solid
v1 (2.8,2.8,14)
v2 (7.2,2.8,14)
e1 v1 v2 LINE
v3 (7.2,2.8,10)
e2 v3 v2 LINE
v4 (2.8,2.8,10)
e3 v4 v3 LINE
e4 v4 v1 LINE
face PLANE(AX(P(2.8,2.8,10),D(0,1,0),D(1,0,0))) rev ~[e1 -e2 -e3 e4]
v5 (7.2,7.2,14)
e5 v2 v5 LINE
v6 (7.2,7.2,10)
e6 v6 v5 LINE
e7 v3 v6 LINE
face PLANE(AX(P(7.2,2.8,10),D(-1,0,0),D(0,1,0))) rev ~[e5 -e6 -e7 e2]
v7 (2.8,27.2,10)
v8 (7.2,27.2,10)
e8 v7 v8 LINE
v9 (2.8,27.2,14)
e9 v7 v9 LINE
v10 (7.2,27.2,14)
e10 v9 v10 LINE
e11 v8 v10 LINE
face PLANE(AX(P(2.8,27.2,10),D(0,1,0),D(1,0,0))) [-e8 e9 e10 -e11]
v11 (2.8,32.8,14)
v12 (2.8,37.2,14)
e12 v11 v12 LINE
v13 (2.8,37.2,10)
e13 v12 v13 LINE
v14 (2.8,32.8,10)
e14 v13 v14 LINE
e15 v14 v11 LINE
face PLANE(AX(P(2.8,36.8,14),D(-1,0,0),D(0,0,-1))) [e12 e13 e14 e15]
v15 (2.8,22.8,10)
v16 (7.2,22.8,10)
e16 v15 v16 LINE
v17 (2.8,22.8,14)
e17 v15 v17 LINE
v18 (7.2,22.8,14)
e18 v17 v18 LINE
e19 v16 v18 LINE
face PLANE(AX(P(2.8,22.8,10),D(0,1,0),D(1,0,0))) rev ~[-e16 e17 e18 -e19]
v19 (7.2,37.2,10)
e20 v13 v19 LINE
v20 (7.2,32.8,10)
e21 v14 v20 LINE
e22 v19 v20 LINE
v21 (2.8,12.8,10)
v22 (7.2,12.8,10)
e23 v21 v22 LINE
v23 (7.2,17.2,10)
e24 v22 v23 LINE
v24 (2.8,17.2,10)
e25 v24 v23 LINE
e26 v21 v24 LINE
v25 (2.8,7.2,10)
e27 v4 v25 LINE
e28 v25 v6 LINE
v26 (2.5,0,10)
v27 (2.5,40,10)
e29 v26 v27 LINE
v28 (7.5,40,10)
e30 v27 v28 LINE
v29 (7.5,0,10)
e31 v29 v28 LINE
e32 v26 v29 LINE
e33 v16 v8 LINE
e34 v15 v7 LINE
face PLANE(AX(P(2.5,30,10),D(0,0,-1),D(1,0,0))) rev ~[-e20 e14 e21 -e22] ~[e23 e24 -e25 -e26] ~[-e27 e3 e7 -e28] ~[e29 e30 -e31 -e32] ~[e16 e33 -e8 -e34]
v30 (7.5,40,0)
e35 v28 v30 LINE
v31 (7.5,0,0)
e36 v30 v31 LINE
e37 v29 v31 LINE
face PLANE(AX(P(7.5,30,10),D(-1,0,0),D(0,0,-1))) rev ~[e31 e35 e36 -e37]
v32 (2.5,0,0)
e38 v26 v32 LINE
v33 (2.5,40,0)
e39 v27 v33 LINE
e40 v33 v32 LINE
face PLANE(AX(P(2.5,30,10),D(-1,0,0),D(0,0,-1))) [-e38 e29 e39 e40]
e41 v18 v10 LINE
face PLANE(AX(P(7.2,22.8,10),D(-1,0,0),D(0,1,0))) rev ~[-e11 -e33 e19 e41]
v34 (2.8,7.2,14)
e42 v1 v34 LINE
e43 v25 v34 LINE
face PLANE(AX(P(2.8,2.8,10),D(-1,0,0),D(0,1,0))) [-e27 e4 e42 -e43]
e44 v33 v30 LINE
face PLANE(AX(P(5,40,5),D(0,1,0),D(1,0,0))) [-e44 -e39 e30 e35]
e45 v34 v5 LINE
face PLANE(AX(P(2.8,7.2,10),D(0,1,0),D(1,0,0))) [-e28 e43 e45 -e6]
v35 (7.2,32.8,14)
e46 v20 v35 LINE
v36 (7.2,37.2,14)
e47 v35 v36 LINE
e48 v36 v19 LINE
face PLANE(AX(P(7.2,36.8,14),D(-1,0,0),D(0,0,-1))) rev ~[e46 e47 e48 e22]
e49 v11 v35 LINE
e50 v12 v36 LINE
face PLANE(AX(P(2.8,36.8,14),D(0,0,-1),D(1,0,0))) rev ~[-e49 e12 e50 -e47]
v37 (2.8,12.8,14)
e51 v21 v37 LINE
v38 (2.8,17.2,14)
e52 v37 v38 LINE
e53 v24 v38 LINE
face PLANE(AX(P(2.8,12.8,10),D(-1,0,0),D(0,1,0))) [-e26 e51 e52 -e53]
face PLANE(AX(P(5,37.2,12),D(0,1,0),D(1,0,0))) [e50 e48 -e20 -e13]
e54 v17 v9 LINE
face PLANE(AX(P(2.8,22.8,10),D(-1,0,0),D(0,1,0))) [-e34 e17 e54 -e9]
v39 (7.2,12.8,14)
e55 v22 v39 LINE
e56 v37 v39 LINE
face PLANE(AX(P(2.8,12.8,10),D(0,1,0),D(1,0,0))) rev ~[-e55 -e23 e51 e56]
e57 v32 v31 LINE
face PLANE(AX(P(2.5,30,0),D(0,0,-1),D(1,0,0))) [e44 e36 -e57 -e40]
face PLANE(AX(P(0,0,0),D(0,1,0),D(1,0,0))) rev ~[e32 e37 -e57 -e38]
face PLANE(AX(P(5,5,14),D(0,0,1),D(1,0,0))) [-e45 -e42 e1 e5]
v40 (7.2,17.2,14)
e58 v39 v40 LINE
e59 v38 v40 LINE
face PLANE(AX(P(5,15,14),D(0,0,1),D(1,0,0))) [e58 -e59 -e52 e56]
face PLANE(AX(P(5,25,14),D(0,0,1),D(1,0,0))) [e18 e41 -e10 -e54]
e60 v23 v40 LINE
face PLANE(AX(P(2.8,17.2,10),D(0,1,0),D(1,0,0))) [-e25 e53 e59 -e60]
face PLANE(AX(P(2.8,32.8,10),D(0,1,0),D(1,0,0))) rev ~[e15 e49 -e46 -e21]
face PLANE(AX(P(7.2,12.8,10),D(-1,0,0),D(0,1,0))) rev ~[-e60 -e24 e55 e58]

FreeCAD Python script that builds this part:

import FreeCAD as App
import Part
import Sketcher
from FreeCAD import Vector

doc = App.newDocument("Part")
params = doc.addObject("Spreadsheet::Sheet", "Params")
for row, (alias, value) in enumerate([
    ("sketch1_width", "10 mm"),
    ("pad1_length", "10 mm"),
    ("sketch2_width", "4.4 mm"),
    ("pad2_length", "4 mm"),
    ("sketch3_width", "10 mm"),
    ("pocket1_length", "2.5 mm"),
    ("sketch4_width", "10 mm"),
    ("pocket2_length", "2.5 mm"),
    ("sketch5_width", "5 mm"),
    ("sketch5_height", "10 mm"),
    ("pad3_length", "10 mm"),
    ("sketch6_width", "4.4 mm"),
    ("pad4_length", "4 mm"),
    ("sketch7_width", "5 mm"),
    ("sketch7_height", "10 mm"),
    ("pad5_length", "10 mm"),
    ("sketch8_width", "4.4 mm"),
    ("pad6_length", "4 mm"),
    ("sketch9_width", "5 mm"),
    ("sketch9_height", "10 mm"),
    ("pad7_length", "10 mm"),
    ("sketch10_height", "4 mm"),
    ("sketch10_width", "4.4 mm"),
    ("pad8_length", "4 mm"),
    ("sketch11_height", "4 mm"),
    ("sketch11_width", "4.4 mm"),
    ("pad9_length", "0.4 mm"),
], start=1):
    params.set(f"A{row}", alias)
    params.set(f"B{row}", "=" + value)
    params.setAlias(f"B{row}", alias)

body = doc.addObject("PartDesign::Body", "Body")

sketch1 = body.newObject("Sketcher::SketchObject", "Sketch")
sketch1.AttachmentSupport = (doc.getObject("XY_Plane"), [""])
sketch1.MapMode = "FlatFace"
sketch1.addGeometry([
    Part.LineSegment(Vector(0, 10, 0), Vector(0, 0, 0)),
    Part.LineSegment(Vector(0, 0, 0), Vector(10, 0, 0)),
    Part.LineSegment(Vector(10, 0, 0), Vector(10, 10, 0)),
    Part.LineSegment(Vector(10, 10, 0), Vector(0, 10, 0)),
], False)
sketch1.addConstraint([
    Sketcher.Constraint("Coincident", 0, 2, 1, 1),
    Sketcher.Constraint("Coincident", 1, 2, 2, 1),
    Sketcher.Constraint("Coincident", 2, 2, 3, 1),
    Sketcher.Constraint("Coincident", 3, 2, 0, 1),
    Sketcher.Constraint("Vertical", 0),
    Sketcher.Constraint("Horizontal", 1),
    Sketcher.Constraint("Vertical", 2),
    Sketcher.Constraint("Horizontal", 3),
    Sketcher.Constraint("Coincident", 0, 2, -1, 1),
    Sketcher.Constraint("Equal", 3, 0),
    Sketcher.Constraint("DistanceX", 1, 1, 1, 2, 10.0),
])
sketch1.setExpression("Constraints[10]", "Params.sketch1_width")
pad1 = body.newObject("PartDesign::Pad", "Pad")
pad1.Profile = sketch1
pad1.setExpression("Length", "Params.pad1_length")

sketch2 = body.newObject("Sketcher::SketchObject", "Sketch001")
sketch2.AttachmentSupport = (doc.getObject("XY_Plane"), [""])
sketch2.MapMode = "FlatFace"
sketch2.AttachmentOffset = App.Placement(Vector(0, 0, 10), App.Rotation())
sketch2.addGeometry([
    Part.LineSegment(Vector(2.8, 7.2, 0), Vector(2.8, 2.8, 0)),
    Part.LineSegment(Vector(2.8, 2.8, 0), Vector(7.2, 2.8, 0)),
    Part.LineSegment(Vector(7.2, 2.8, 0), Vector(7.2, 7.2, 0)),
    Part.LineSegment(Vector(7.2, 7.2, 0), Vector(2.8, 7.2, 0)),
], False)
sketch2.addConstraint([
    Sketcher.Constraint("Coincident", 0, 2, 1, 1),
    Sketcher.Constraint("Coincident", 1, 2, 2, 1),
    Sketcher.Constraint("Coincident", 2, 2, 3, 1),
    Sketcher.Constraint("Coincident", 3, 2, 0, 1),
    Sketcher.Constraint("Vertical", 0),
    Sketcher.Constraint("Horizontal", 1),
    Sketcher.Constraint("Vertical", 2),
    Sketcher.Constraint("Horizontal", 3),
    Sketcher.Constraint("Equal", 3, 0),
    Sketcher.Constraint("DistanceX", 1, 1, 1, 2, 4.4),
    Sketcher.Constraint("DistanceX", -1, 1, 0, 2, 2.8),
    Sketcher.Constraint("DistanceY", -1, 1, 0, 2, 2.8),
])
sketch2.setExpression("Constraints[9]", "Params.sketch2_width")
pad2 = body.newObject("PartDesign::Pad", "Pad001")
pad2.Profile = sketch2
pad2.setExpression("Length", "Params.pad2_length")

sketch3 = body.newObject("Sketcher::SketchObject", "Sketch002")
sketch3.AttachmentSupport = (doc.getObject("YZ_Plane"), [""])
sketch3.MapMode = "FlatFace"
sketch3.addGeometry([
    Part.LineSegment(Vector(0, 0, 0), Vector(0, 10, 0)),
    Part.LineSegment(Vector(0, 10, 0), Vector(10, 10, 0)),
    Part.LineSegment(Vector(10, 10, 0), Vector(10, 0, 0)),
    Part.LineSegment(Vector(10, 0, 0), Vector(0, 0, 0)),
], False)
sketch3.addConstraint([
    Sketcher.Constraint("Coincident", 0, 2, 1, 1),
    Sketcher.Constraint("Coincident", 1, 2, 2, 1),
    Sketcher.Constraint("Coincident", 2, 2, 3, 1),
    Sketcher.Constraint("Coincident", 3, 2, 0, 1),
    Sketcher.Constraint("Vertical", 0),
    Sketcher.Constraint("Horizontal", 1),
    Sketcher.Constraint("Vertical", 2),
    Sketcher.Constraint("Horizontal", 3),
    Sketcher.Constraint("Coincident", 3, 2, -1, 1),
    Sketcher.Constraint("Equal", 3, 0),
    Sketcher.Constraint("DistanceX", 1, 1, 1, 2, 10.0),
])
sketch3.setExpression("Constraints[10]", "Params.sketch3_width")
pocket1 = body.newObject("PartDesign::Pocket", "Pocket")
pocket1.Profile = sketch3
pocket1.setExpression("Length", "Params.pocket1_length")
pocket1.Reversed = True

sketch4 = body.newObject("Sketcher::SketchObject", "Sketch003")
sketch4.AttachmentSupport = (doc.getObject("YZ_Plane"), [""])
sketch4.MapMode = "FlatFace"
sketch4.AttachmentOffset = App.Placement(Vector(0, 0, 10), App.Rotation())
sketch4.addGeometry([
    Part.LineSegment(Vector(10, 0, 0), Vector(10, 10, 0)),
    Part.LineSegment(Vector(10, 10, 0), Vector(0, 10, 0)),
    Part.LineSegment(Vector(0, 10, 0), Vector(0, 0, 0)),
    Part.LineSegment(Vector(0, 0, 0), Vector(10, 0, 0)),
], False)
sketch4.addConstraint([
    Sketcher.Constraint("Coincident", 0, 2, 1, 1),
    Sketcher.Constraint("Coincident", 1, 2, 2, 1),
    Sketcher.Constraint("Coincident", 2, 2, 3, 1),
    Sketcher.Constraint("Coincident", 3, 2, 0, 1),
    Sketcher.Constraint("Vertical", 0),
    Sketcher.Constraint("Horizontal", 1),
    Sketcher.Constraint("Vertical", 2),
    Sketcher.Constraint("Horizontal", 3),
    Sketcher.Constraint("Coincident", 2, 2, -1, 1),
    Sketcher.Constraint("Equal", 3, 0),
    Sketcher.Constraint("DistanceX", 1, 2, 1, 1, 10.0),
])
sketch4.setExpression("Constraints[10]", "Params.sketch4_width")
pocket2 = body.newObject("PartDesign::Pocket", "Pocket001")
pocket2.Profile = sketch4
pocket2.setExpression("Length", "Params.pocket2_length")

sketch5 = body.newObject("Sketcher::SketchObject", "Sketch004")
sketch5.AttachmentSupport = (doc.getObject("XZ_Plane"), [""])
sketch5.MapMode = "FlatFace"
sketch5.AttachmentOffset = App.Placement(Vector(0, 0, -10), App.Rotation())
sketch5.addGeometry([
    Part.LineSegment(Vector(2, 0, 0), Vector(2, 10, 0)),
    Part.LineSegment(Vector(2, 10, 0), Vector(8, 10, 0)),
    Part.LineSegment(Vector(8, 10, 0), Vector(8, 0, 0)),
    Part.LineSegment(Vector(8, 0, 0), Vector(2, 0, 0)),
], False)
sketch5.addConstraint([
    Sketcher.Constraint("Coincident", 0, 2, 1, 1),
    Sketcher.Constraint("Coincident", 1, 2, 2, 1),
    Sketcher.Constraint("Coincident", 2, 2, 3, 1),
    Sketcher.Constraint("Coincident", 3, 2, 0, 1),
    Sketcher.Constraint("Vertical", 0),
    Sketcher.Constraint("Horizontal", 1),
    Sketcher.Constraint("Vertical", 2),
    Sketcher.Constraint("Horizontal", 3),
    Sketcher.Constraint("PointOnObject", 2, 2, -1),
    Sketcher.Constraint("DistanceX", 1, 1, 1, 2, 5.0),
    Sketcher.Constraint("DistanceY", 0, 1, 0, 2, 10.0),
    Sketcher.Constraint("DistanceX", -1, 1, 0, 2, 2.5),
])
sketch5.setExpression("Constraints[9]", "Params.sketch5_width")
sketch5.setExpression("Constraints[10]", "Params.sketch5_height")
pad3 = body.newObject("PartDesign::Pad", "Pad002")
pad3.Profile = sketch5
pad3.setExpression("Length", "Params.pad3_length")
pad3.Reversed = True

sketch6 = body.newObject("Sketcher::SketchObject", "Sketch005")
sketch6.AttachmentSupport = (doc.getObject("XY_Plane"), [""])
sketch6.MapMode = "FlatFace"
sketch6.AttachmentOffset = App.Placement(Vector(0, 0, 10), App.Rotation())
sketch6.addGeometry([
    Part.LineSegment(Vector(2.8, 17.2, 0), Vector(2.8, 12.8, 0)),
    Part.LineSegment(Vector(2.8, 12.8, 0), Vector(7.2, 12.8, 0)),
    Part.LineSegment(Vector(7.2, 12.8, 0), Vector(7.2, 17.2, 0)),
    Part.LineSegment(Vector(7.2, 17.2, 0), Vector(2.8, 17.2, 0)),
], False)
sketch6.addConstraint([
    Sketcher.Constraint("Coincident", 0, 2, 1, 1),
    Sketcher.Constraint("Coincident", 1, 2, 2, 1),
    Sketcher.Constraint("Coincident", 2, 2, 3, 1),
    Sketcher.Constraint("Coincident", 3, 2, 0, 1),
    Sketcher.Constraint("Vertical", 0),
    Sketcher.Constraint("Horizontal", 1),
    Sketcher.Constraint("Vertical", 2),
    Sketcher.Constraint("Horizontal", 3),
    Sketcher.Constraint("Equal", 3, 0),
    Sketcher.Constraint("DistanceX", 1, 1, 1, 2, 4.4),
    Sketcher.Constraint("DistanceX", -1, 1, 0, 2, 2.8),
    Sketcher.Constraint("DistanceY", -1, 1, 0, 2, 12.8),
])
sketch6.setExpression("Constraints[9]", "Params.sketch6_width")
pad4 = body.newObject("PartDesign::Pad", "Pad003")
pad4.Profile = sketch6
pad4.setExpression("Length", "Params.pad4_length")

sketch7 = body.newObject("Sketcher::SketchObject", "Sketch006")
sketch7.AttachmentSupport = (doc.getObject("XZ_Plane"), [""])
sketch7.MapMode = "FlatFace"
sketch7.AttachmentOffset = App.Placement(Vector(0, 0, -20), App.Rotation())
sketch7.addGeometry([
    Part.LineSegment(Vector(2, 0, 0), Vector(2, 10, 0)),
    Part.LineSegment(Vector(2, 10, 0), Vector(8, 10, 0)),
    Part.LineSegment(Vector(8, 10, 0), Vector(8, 0, 0)),
    Part.LineSegment(Vector(8, 0, 0), Vector(2, 0, 0)),
], False)
sketch7.addConstraint([
    Sketcher.Constraint("Coincident", 0, 2, 1, 1),
    Sketcher.Constraint("Coincident", 1, 2, 2, 1),
    Sketcher.Constraint("Coincident", 2, 2, 3, 1),
    Sketcher.Constraint("Coincident", 3, 2, 0, 1),
    Sketcher.Constraint("Vertical", 0),
    Sketcher.Constraint("Horizontal", 1),
    Sketcher.Constraint("Vertical", 2),
    Sketcher.Constraint("Horizontal", 3),
    Sketcher.Constraint("PointOnObject", 2, 2, -1),
    Sketcher.Constraint("DistanceX", 1, 1, 1, 2, 5.0),
    Sketcher.Constraint("DistanceY", 0, 1, 0, 2, 10.0),
    Sketcher.Constraint("DistanceX", -1, 1, 0, 2, 2.5),
])
sketch7.setExpression("Constraints[9]", "Params.sketch7_width")
sketch7.setExpression("Constraints[10]", "Params.sketch7_height")
pad5 = body.newObject("PartDesign::Pad", "Pad004")
pad5.Profile = sketch7
pad5.setExpression("Length", "Params.pad5_length")
pad5.Reversed = True

sketch8 = body.newObject("Sketcher::SketchObject", "Sketch007")
sketch8.AttachmentSupport = (doc.getObject("XY_Plane"), [""])
sketch8.MapMode = "FlatFace"
sketch8.AttachmentOffset = App.Placement(Vector(0, 0, 10), App.Rotation())
sketch8.addGeometry([
    Part.LineSegment(Vector(2.8, 27.2, 0), Vector(2.8, 22.8, 0)),
    Part.LineSegment(Vector(2.8, 22.8, 0), Vector(7.2, 22.8, 0)),
    Part.LineSegment(Vector(7.2, 22.8, 0), Vector(7.2, 27.2, 0)),
    Part.LineSegment(Vector(7.2, 27.2, 0), Vector(2.8, 27.2, 0)),
], False)
sketch8.addConstraint([
    Sketcher.Constraint("Coincident", 0, 2, 1, 1),
    Sketcher.Constraint("Coincident", 1, 2, 2, 1),
    Sketcher.Constraint("Coincident", 2, 2, 3, 1),
    Sketcher.Constraint("Coincident", 3, 2, 0, 1),
    Sketcher.Constraint("Vertical", 0),
    Sketcher.Constraint("Horizontal", 1),
    Sketcher.Constraint("Vertical", 2),
    Sketcher.Constraint("Horizontal", 3),
    Sketcher.Constraint("Equal", 3, 0),
    Sketcher.Constraint("DistanceX", 1, 1, 1, 2, 4.4),
    Sketcher.Constraint("DistanceX", -1, 1, 0, 2, 2.8),
    Sketcher.Constraint("DistanceY", -1, 1, 0, 2, 22.8),
])
sketch8.setExpression("Constraints[9]", "Params.sketch8_width")
pad6 = body.newObject("PartDesign::Pad", "Pad005")
pad6.Profile = sketch8
pad6.setExpression("Length", "Params.pad6_length")

sketch9 = body.newObject("Sketcher::SketchObject", "Sketch008")
sketch9.AttachmentSupport = (doc.getObject("XZ_Plane"), [""])
sketch9.MapMode = "FlatFace"
sketch9.AttachmentOffset = App.Placement(Vector(0, 0, -30), App.Rotation())
sketch9.addGeometry([
    Part.LineSegment(Vector(2, 0, 0), Vector(2, 10, 0)),
    Part.LineSegment(Vector(2, 10, 0), Vector(8, 10, 0)),
    Part.LineSegment(Vector(8, 10, 0), Vector(8, 0, 0)),
    Part.LineSegment(Vector(8, 0, 0), Vector(2, 0, 0)),
], False)
sketch9.addConstraint([
    Sketcher.Constraint("Coincident", 0, 2, 1, 1),
    Sketcher.Constraint("Coincident", 1, 2, 2, 1),
    Sketcher.Constraint("Coincident", 2, 2, 3, 1),
    Sketcher.Constraint("Coincident", 3, 2, 0, 1),
    Sketcher.Constraint("Vertical", 0),
    Sketcher.Constraint("Horizontal", 1),
    Sketcher.Constraint("Vertical", 2),
    Sketcher.Constraint("Horizontal", 3),
    Sketcher.Constraint("PointOnObject", 2, 2, -1),
    Sketcher.Constraint("DistanceX", 1, 1, 1, 2, 5.0),
    Sketcher.Constraint("DistanceY", 0, 1, 0, 2, 10.0),
    Sketcher.Constraint("DistanceX", -1, 1, 0, 2, 2.5),
])
sketch9.setExpression("Constraints[9]", "Params.sketch9_width")
sketch9.setExpression("Constraints[10]", "Params.sketch9_height")
pad7 = body.newObject("PartDesign::Pad", "Pad006")
pad7.Profile = sketch9
pad7.setExpression("Length", "Params.pad7_length")
pad7.Reversed = True

sketch10 = body.newObject("Sketcher::SketchObject", "Sketch009")
sketch10.AttachmentSupport = (doc.getObject("XY_Plane"), [""])
sketch10.MapMode = "FlatFace"
sketch10.AttachmentOffset = App.Placement(Vector(0, 0, 10), App.Rotation())
sketch10.addGeometry([
    Part.LineSegment(Vector(2.8, 36.8, 0), Vector(2.8, 32.8, 0)),
    Part.LineSegment(Vector(2.8, 32.8, 0), Vector(7.2, 32.8, 0)),
    Part.LineSegment(Vector(7.2, 32.8, 0), Vector(7.2, 36.8, 0)),
    Part.LineSegment(Vector(7.2, 36.8, 0), Vector(2.8, 36.8, 0)),
], False)
sketch10.addConstraint([
    Sketcher.Constraint("Coincident", 0, 2, 1, 1),
    Sketcher.Constraint("Coincident", 1, 2, 2, 1),
    Sketcher.Constraint("Coincident", 2, 2, 3, 1),
    Sketcher.Constraint("Coincident", 3, 2, 0, 1),
    Sketcher.Constraint("Vertical", 0),
    Sketcher.Constraint("Horizontal", 1),
    Sketcher.Constraint("Vertical", 2),
    Sketcher.Constraint("Horizontal", 3),
    Sketcher.Constraint("DistanceY", 0, 2, 0, 1, 4.0),
    Sketcher.Constraint("DistanceX", 1, 1, 1, 2, 4.4),
    Sketcher.Constraint("DistanceX", -1, 1, 0, 2, 2.8),
    Sketcher.Constraint("DistanceY", -1, 1, 0, 2, 32.8),
])
sketch10.setExpression("Constraints[8]", "Params.sketch10_height")
sketch10.setExpression("Constraints[9]", "Params.sketch10_width")
pad8 = body.newObject("PartDesign::Pad", "Pad007")
pad8.Profile = sketch10
pad8.setExpression("Length", "Params.pad8_length")

sketch11 = body.newObject("Sketcher::SketchObject", "Sketch010")
sketch11.AttachmentSupport = (doc.getObject("XZ_Plane"), [""])
sketch11.MapMode = "FlatFace"
sketch11.AttachmentOffset = App.Placement(Vector(0, 0, -36.8), App.Rotation())
sketch11.addGeometry([
    Part.LineSegment(Vector(2.8, 10, 0), Vector(2.8, 14, 0)),
    Part.LineSegment(Vector(2.8, 14, 0), Vector(7.2, 14, 0)),
    Part.LineSegment(Vector(7.2, 14, 0), Vector(7.2, 10, 0)),
    Part.LineSegment(Vector(7.2, 10, 0), Vector(2.8, 10, 0)),
], False)
sketch11.addConstraint([
    Sketcher.Constraint("Coincident", 0, 2, 1, 1),
    Sketcher.Constraint("Coincident", 1, 2, 2, 1),
    Sketcher.Constraint("Coincident", 2, 2, 3, 1),
    Sketcher.Constraint("Coincident", 3, 2, 0, 1),
    Sketcher.Constraint("Vertical", 0),
    Sketcher.Constraint("Horizontal", 1),
    Sketcher.Constraint("Vertical", 2),
    Sketcher.Constraint("Horizontal", 3),
    Sketcher.Constraint("DistanceY", 0, 1, 0, 2, 4.0),
    Sketcher.Constraint("DistanceX", 1, 1, 1, 2, 4.4),
    Sketcher.Constraint("DistanceY", -1, 1, 0, 2, 14.0),
    Sketcher.Constraint("DistanceX", -1, 1, 0, 2, 2.8),
])
sketch11.setExpression("Constraints[8]", "Params.sketch11_height")
sketch11.setExpression("Constraints[9]", "Params.sketch11_width")
pad9 = body.newObject("PartDesign::Pad", "Pad008")
pad9.Profile = sketch11
pad9.setExpression("Length", "Params.pad9_length")
pad9.Reversed = True

doc.recompute()
